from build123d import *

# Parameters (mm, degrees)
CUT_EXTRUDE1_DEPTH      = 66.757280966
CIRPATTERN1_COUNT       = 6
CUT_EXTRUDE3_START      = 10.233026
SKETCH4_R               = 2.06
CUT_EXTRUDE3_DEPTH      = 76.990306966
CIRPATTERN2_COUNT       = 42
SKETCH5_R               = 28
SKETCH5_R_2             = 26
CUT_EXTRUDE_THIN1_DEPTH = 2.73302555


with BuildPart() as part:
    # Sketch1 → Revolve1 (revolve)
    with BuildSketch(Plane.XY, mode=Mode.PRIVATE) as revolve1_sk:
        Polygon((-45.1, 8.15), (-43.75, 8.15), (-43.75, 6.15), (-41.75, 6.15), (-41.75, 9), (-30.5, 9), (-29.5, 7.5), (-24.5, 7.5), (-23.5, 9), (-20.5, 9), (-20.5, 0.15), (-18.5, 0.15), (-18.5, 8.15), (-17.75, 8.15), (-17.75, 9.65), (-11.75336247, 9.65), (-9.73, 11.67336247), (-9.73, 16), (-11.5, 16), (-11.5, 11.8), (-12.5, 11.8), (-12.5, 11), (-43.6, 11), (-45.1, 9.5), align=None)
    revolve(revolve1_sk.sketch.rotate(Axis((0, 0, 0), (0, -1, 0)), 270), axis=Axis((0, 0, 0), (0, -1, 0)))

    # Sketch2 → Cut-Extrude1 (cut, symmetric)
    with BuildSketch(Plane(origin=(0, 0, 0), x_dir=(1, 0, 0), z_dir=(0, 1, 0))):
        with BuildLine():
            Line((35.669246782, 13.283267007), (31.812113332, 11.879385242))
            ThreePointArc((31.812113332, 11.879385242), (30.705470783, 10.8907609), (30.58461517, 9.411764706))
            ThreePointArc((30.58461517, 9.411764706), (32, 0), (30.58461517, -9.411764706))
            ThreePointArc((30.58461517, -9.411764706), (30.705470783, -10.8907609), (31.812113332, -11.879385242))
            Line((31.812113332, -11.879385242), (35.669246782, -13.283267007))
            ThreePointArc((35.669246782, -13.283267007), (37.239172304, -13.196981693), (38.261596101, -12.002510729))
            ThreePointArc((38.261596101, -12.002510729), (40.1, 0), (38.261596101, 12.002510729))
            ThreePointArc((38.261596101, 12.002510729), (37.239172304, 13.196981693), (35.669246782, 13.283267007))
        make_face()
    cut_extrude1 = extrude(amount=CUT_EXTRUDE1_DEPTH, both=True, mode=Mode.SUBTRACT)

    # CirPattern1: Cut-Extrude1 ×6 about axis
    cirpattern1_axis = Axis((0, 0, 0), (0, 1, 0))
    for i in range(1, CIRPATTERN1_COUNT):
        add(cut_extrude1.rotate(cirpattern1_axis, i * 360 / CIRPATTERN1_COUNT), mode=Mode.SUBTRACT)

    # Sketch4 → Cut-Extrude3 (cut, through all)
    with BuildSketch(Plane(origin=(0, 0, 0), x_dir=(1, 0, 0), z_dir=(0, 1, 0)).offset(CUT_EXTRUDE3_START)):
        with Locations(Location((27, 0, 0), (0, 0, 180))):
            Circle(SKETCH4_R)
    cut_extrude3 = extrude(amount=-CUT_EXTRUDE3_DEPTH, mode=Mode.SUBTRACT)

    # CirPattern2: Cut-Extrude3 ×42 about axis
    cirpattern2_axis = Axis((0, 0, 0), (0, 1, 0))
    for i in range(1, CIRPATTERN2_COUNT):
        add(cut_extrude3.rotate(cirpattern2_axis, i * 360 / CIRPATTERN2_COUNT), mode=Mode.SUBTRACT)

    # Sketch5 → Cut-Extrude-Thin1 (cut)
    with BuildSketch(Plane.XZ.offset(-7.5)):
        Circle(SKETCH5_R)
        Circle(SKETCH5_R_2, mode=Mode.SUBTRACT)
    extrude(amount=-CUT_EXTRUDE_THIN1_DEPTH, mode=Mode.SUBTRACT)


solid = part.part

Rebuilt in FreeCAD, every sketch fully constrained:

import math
import FreeCAD as App
import Part
import Sketcher
from FreeCAD import Vector
Q = App.Units.Quantity

doc = App.newDocument("Part")
body = doc.addObject("PartDesign::Body", "Body")

# Sketch on XY plane
sketch1 = body.newObject("Sketcher::SketchObject", "Sketch")
sketch1.AttachmentSupport = (doc.getObject("XY_Plane"), [""])
sketch1.MapMode = "FlatFace"
sketch1.addGeometry(Part.LineSegment(Vector(-45.1, 8.2, 0), Vector(-43.8, 8.2, 0)), False)
sketch1.addGeometry(Part.LineSegment(Vector(-43.8, 8.2, 0), Vector(-43.8, 6.2, 0)), False)
sketch1.addGeometry(Part.LineSegment(Vector(-43.8, 6.2, 0), Vector(-41.8, 6.2, 0)), False)
sketch1.addGeometry(Part.LineSegment(Vector(-41.8, 6.2, 0), Vector(-41.8, 9, 0)), False)
sketch1.addGeometry(Part.LineSegment(Vector(-41.8, 9, 0), Vector(-30.5, 9, 0)), False)
sketch1.addGeometry(Part.LineSegment(Vector(-30.5, 9, 0), Vector(-29.5, 7.5, 0)), False)
sketch1.addGeometry(Part.LineSegment(Vector(-29.5, 7.5, 0), Vector(-24.5, 7.5, 0)), False)
sketch1.addGeometry(Part.LineSegment(Vector(-24.5, 7.5, 0), Vector(-23.5, 9, 0)), False)
sketch1.addGeometry(Part.LineSegment(Vector(-23.5, 9, 0), Vector(-20.5, 9, 0)), False)
sketch1.addGeometry(Part.LineSegment(Vector(-20.5, 9, 0), Vector(-20.5, 0.1, 0)), False)
sketch1.addGeometry(Part.LineSegment(Vector(-20.5, 0.1, 0), Vector(-18.5, 0.1, 0)), False)
sketch1.addGeometry(Part.LineSegment(Vector(-18.5, 0.1, 0), Vector(-18.5, 8.2, 0)), False)
sketch1.addGeometry(Part.LineSegment(Vector(-18.5, 8.2, 0), Vector(-17.8, 8.2, 0)), False)
sketch1.addGeometry(Part.LineSegment(Vector(-17.8, 8.2, 0), Vector(-17.8, 9.7, 0)), False)
sketch1.addGeometry(Part.LineSegment(Vector(-17.8, 9.7, 0), Vector(-11.8, 9.7, 0)), False)
sketch1.addGeometry(Part.LineSegment(Vector(-11.8, 9.7, 0), Vector(-9.7, 11.7, 0)), False)
sketch1.addGeometry(Part.LineSegment(Vector(-9.7, 11.7, 0), Vector(-9.7, 16, 0)), False)
sketch1.addGeometry(Part.LineSegment(Vector(-9.7, 16, 0), Vector(-11.5, 16, 0)), False)
sketch1.addGeometry(Part.LineSegment(Vector(-11.5, 16, 0), Vector(-11.5, 11.8, 0)), False)
sketch1.addGeometry(Part.LineSegment(Vector(-11.5, 11.8, 0), Vector(-12.5, 11.8, 0)), False)
sketch1.addGeometry(Part.LineSegment(Vector(-12.5, 11.8, 0), Vector(-12.5, 11, 0)), False)
sketch1.addGeometry(Part.LineSegment(Vector(-12.5, 11, 0), Vector(-43.6, 11, 0)), False)
sketch1.addGeometry(Part.LineSegment(Vector(-43.6, 11, 0), Vector(-45.1, 9.5, 0)), False)
sketch1.addGeometry(Part.LineSegment(Vector(-45.1, 9.5, 0), Vector(-45.1, 8.2, 0)), False)
sketch1.addConstraint(Sketcher.Constraint("Coincident", 0, 2, 1, 1))
sketch1.addConstraint(Sketcher.Constraint("Coincident", 1, 2, 2, 1))
sketch1.addConstraint(Sketcher.Constraint("Coincident", 2, 2, 3, 1))
sketch1.addConstraint(Sketcher.Constraint("Coincident", 3, 2, 4, 1))
sketch1.addConstraint(Sketcher.Constraint("Coincident", 4, 2, 5, 1))
sketch1.addConstraint(Sketcher.Constraint("Coincident", 5, 2, 6, 1))
sketch1.addConstraint(Sketcher.Constraint("Coincident", 6, 2, 7, 1))
sketch1.addConstraint(Sketcher.Constraint("Coincident", 7, 2, 8, 1))
sketch1.addConstraint(Sketcher.Constraint("Coincident", 8, 2, 9, 1))
sketch1.addConstraint(Sketcher.Constraint("Coincident", 9, 2, 10, 1))
sketch1.addConstraint(Sketcher.Constraint("Coincident", 10, 2, 11, 1))
sketch1.addConstraint(Sketcher.Constraint("Coincident", 11, 2, 12, 1))
sketch1.addConstraint(Sketcher.Constraint("Coincident", 12, 2, 13, 1))
sketch1.addConstraint(Sketcher.Constraint("Coincident", 13, 2, 14, 1))
sketch1.addConstraint(Sketcher.Constraint("Coincident", 14, 2, 15, 1))
sketch1.addConstraint(Sketcher.Constraint("Coincident", 15, 2, 16, 1))
sketch1.addConstraint(Sketcher.Constraint("Coincident", 16, 2, 17, 1))
sketch1.addConstraint(Sketcher.Constraint("Coincident", 17, 2, 18, 1))
sketch1.addConstraint(Sketcher.Constraint("Coincident", 18, 2, 19, 1))
sketch1.addConstraint(Sketcher.Constraint("Coincident", 19, 2, 20, 1))
sketch1.addConstraint(Sketcher.Constraint("Coincident", 20, 2, 21, 1))
sketch1.addConstraint(Sketcher.Constraint("Coincident", 21, 2, 22, 1))
sketch1.addConstraint(Sketcher.Constraint("Coincident", 22, 2, 23, 1))
sketch1.addConstraint(Sketcher.Constraint("Coincident", 23, 2, 0, 1))
sketch1.addConstraint(Sketcher.Constraint("Horizontal", 0))
sketch1.addConstraint(Sketcher.Constraint("Vertical", 1))
sketch1.addConstraint(Sketcher.Constraint("Horizontal", 2))
sketch1.addConstraint(Sketcher.Constraint("Vertical", 3))
sketch1.addConstraint(Sketcher.Constraint("Horizontal", 4))
sketch1.addConstraint(Sketcher.Constraint("Horizontal", 6))
sketch1.addConstraint(Sketcher.Constraint("Horizontal", 8))
sketch1.addConstraint(Sketcher.Constraint("Vertical", 9))
sketch1.addConstraint(Sketcher.Constraint("Horizontal", 10))
sketch1.addConstraint(Sketcher.Constraint("Vertical", 11))
sketch1.addConstraint(Sketcher.Constraint("Horizontal", 12))
sketch1.addConstraint(Sketcher.Constraint("Vertical", 13))
sketch1.addConstraint(Sketcher.Constraint("Horizontal", 14))
sketch1.addConstraint(Sketcher.Constraint("Vertical", 16))
sketch1.addConstraint(Sketcher.Constraint("Horizontal", 17))
sketch1.addConstraint(Sketcher.Constraint("Vertical", 18))
sketch1.addConstraint(Sketcher.Constraint("Horizontal", 19))
sketch1.addConstraint(Sketcher.Constraint("Vertical", 20))
sketch1.addConstraint(Sketcher.Constraint("Horizontal", 21))
sketch1.addConstraint(Sketcher.Constraint("Vertical", 23))
sketch1.addConstraint(Sketcher.Constraint("Parallel", 15, 22))
sketch1.addConstraint(Sketcher.Constraint("Horizontal", 4, 2, 7, 2))
sketch1.addConstraint(Sketcher.Constraint("Horizontal", 0, 2, 11, 2))
sketch1.addConstraint(Sketcher.Constraint("Equal", 2, 10))
sketch1.addConstraint(Sketcher.Constraint("Equal", 10, 1))
sketch1.addConstraint(Sketcher.Constraint("Equal", 0, 23))
sketch1.addConstraint(Sketcher.Constraint("Equal", 5, 7))
sketch1.addConstraint(Sketcher.Constraint("DistanceX", 2, 1, 2, 2, 2.0))
sketch1.addConstraint(Sketcher.Constraint("DistanceX", 6, 1, 6, 2, 5.0))
sketch1.addConstraint(Sketcher.Constraint("DistanceX", 8, 1, 8, 2, 3.0))
sketch1.addConstraint(Sketcher.Constraint("DistanceX", 19, 2, 19, 1, 1.0))
sketch1.addConstraint(Sketcher.Constraint("DistanceY", 11, 1, 11, 2, 8.0))
sketch1.addConstraint(Sketcher.Constraint("Angle", 15, Q("45 deg")))
sketch1.addConstraint(Sketcher.Constraint("DistanceX", 21, 2, 21, 1, 31.1))
sketch1.addConstraint(Sketcher.Constraint("DistanceY", 13, 1, 13, 2, 1.5))
sketch1.addConstraint(Sketcher.Constraint("DistanceY", 18, 2, 18, 1, 4.2))
sketch1.addConstraint(Sketcher.Constraint("DistanceY", 20, 2, 20, 1, 0.8))
sketch1.addConstraint(Sketcher.Constraint("DistanceY", -1, 1, 3, 2, 9.0))
sketch1.addConstraint(Sketcher.Constraint("DistanceY", -1, 1, 16, 2, 16.0))
sketch1.addConstraint(Sketcher.Constraint("DistanceX", 4, 2, 5, 2, 1.0))
sketch1.addConstraint(Sketcher.Constraint("DistanceX", 0, 1, 0, 2, 1.35))
sketch1.addConstraint(Sketcher.Constraint("DistanceX", 4, 1, 4, 2, 11.25))
sketch1.addConstraint(Sketcher.Constraint("DistanceX", 12, 1, 12, 2, 0.75))
sketch1.addConstraint(Sketcher.Constraint("DistanceX", 17, 2, 17, 1, 1.77))
sketch1.addConstraint(Sketcher.Constraint("DistanceY", 3, 1, 3, 2, 2.85))
sketch1.addConstraint(Sketcher.Constraint("DistanceX", 4, 2, -1, 1, 30.5))
sketch1.addConstraint(Sketcher.Constraint("DistanceY", -1, 1, 5, 2, 7.5))
sketch1.addConstraint(Sketcher.Constraint("DistanceX", 14, 1, 14, 2, 5.996638))
revolution = body.newObject("PartDesign::Revolution", "Revolution")
revolution.Profile = sketch1
revolution.ReferenceAxis = (sketch1, ["V_Axis"])
revolution.Angle = 360

# Sketch on XZ plane
sketch2 = body.newObject("Sketcher::SketchObject", "Sketch001")
sketch2.AttachmentSupport = (doc.getObject("XZ_Plane"), [""])
sketch2.MapMode = "FlatFace"
sketch2.addGeometry(Part.LineSegment(Vector(35.7, -13.3, 0), Vector(31.8, -11.9, 0)), False)
sketch2.addGeometry(Part.ArcOfCircle(Part.Circle(Vector(32.5, -10, 0), Vector(0, 0, 1), 2), math.radians(163), math.radians(250)), False)
sketch2.addGeometry(Part.ArcOfCircle(Part.Circle(Vector(0, 0, 0), Vector(0, 0, 1), 32), math.radians(-17), math.radians(17)), False)
sketch2.addGeometry(Part.ArcOfCircle(Part.Circle(Vector(32.5, 10, 0), Vector(0, 0, 1), 2), math.radians(110), math.radians(197)), False)
sketch2.addGeometry(Part.LineSegment(Vector(31.8, 11.9, 0), Vector(35.7, 13.3, 0)), False)
sketch2.addGeometry(Part.ArcOfCircle(Part.Circle(Vector(36.4, 11.4, 0), Vector(0, 0, 1), 2), math.radians(17), math.radians(110)), False)
sketch2.addGeometry(Part.ArcOfCircle(Part.Circle(Vector(0, 0, 0), Vector(0, 0, 1), 40.1), math.radians(-17), math.radians(17)), False)
sketch2.addGeometry(Part.ArcOfCircle(Part.Circle(Vector(36.4, -11.4, 0), Vector(0, 0, 1), 2), math.radians(-110), math.radians(-17)), False)
sketch2.addConstraint(Sketcher.Constraint("Tangent", 0, 2, 1, 2))
sketch2.addConstraint(Sketcher.Constraint("Tangent", 1, 1, 2, 1))
sketch2.addConstraint(Sketcher.Constraint("Tangent", 2, 2, 3, 2))
sketch2.addConstraint(Sketcher.Constraint("Tangent", 3, 1, 4, 1))
sketch2.addConstraint(Sketcher.Constraint("Tangent", 4, 2, 5, 2))
sketch2.addConstraint(Sketcher.Constraint("Tangent", 5, 1, 6, 2))
sketch2.addConstraint(Sketcher.Constraint("Tangent", 6, 1, 7, 2))
sketch2.addConstraint(Sketcher.Constraint("Tangent", 7, 1, 0, 1))
sketch2.addConstraint(Sketcher.Constraint("Coincident", 2, 3, -1, 1))
sketch2.addConstraint(Sketcher.Constraint("Coincident", 6, 3, -1, 1))
sketch2.addConstraint(Sketcher.Constraint("Equal", 1, 3))
sketch2.addConstraint(Sketcher.Constraint("Equal", 3, 5))
sketch2.addConstraint(Sketcher.Constraint("Equal", 5, 7))
sketch2.addConstraint(Sketcher.Constraint("Symmetric", 0, 2, 3, 1, -1))
sketch2.addConstraint(Sketcher.Constraint("Radius", 1, 2.0))
sketch2.addConstraint(Sketcher.Constraint("Radius", 2, 32.0))
sketch2.addConstraint(Sketcher.Constraint("Radius", 6, 40.1))
sketch2.addConstraint(Sketcher.Constraint("Angle", 0, Q("160 deg")))
sketch2.addConstraint(Sketcher.Constraint("DistanceY", 1, 3, -1, 1, 10.0))
pocket1 = body.newObject("PartDesign::Pocket", "Pocket")
pocket1.Profile = sketch2
pocket1.Length = 133.514562
pocket1.Midplane = True
doc.recompute()

polarpattern = body.newObject("PartDesign::PolarPattern", "PolarPattern")
polarpattern.Originals = [pocket1]
polarpattern.Axis = (doc.getObject("Y_Axis"), [""])
polarpattern.Angle = 360
polarpattern.Occurrences = 6
body.Tip = polarpattern

# Sketch on XZ plane
sketch3 = body.newObject("Sketcher::SketchObject", "Sketch002")
sketch3.AttachmentSupport = (doc.getObject("XZ_Plane"), [""])
sketch3.MapMode = "FlatFace"
sketch3.AttachmentOffset = App.Placement(Vector(0, 0, -10.233026), App.Rotation())
sketch3.addGeometry(Part.Circle(Vector(27, 0, 0), Vector(0, 0, 1), 2.1), False)
sketch3.addConstraint(Sketcher.Constraint("PointOnObject", 0, 3, -1))
sketch3.addConstraint(Sketcher.Constraint("Diameter", 0, 4.12))
sketch3.addConstraint(Sketcher.Constraint("DistanceX", -1, 1, 0, 3, 27.0))
pocket2 = body.newObject("PartDesign::Pocket", "Pocket001")
pocket2.Profile = sketch3
pocket2.Type = "ThroughAll"
pocket2.Reversed = True
doc.recompute()

polarpattern2 = body.newObject("PartDesign::PolarPattern", "PolarPattern001")
polarpattern2.Originals = [pocket2]
polarpattern2.Axis = (doc.getObject("Y_Axis"), [""])
polarpattern2.Angle = 360
polarpattern2.Occurrences = 42
body.Tip = polarpattern2

# Sketch on XZ plane
sketch4 = body.newObject("Sketcher::SketchObject", "Sketch003")
sketch4.AttachmentSupport = (doc.getObject("XZ_Plane"), [""])
sketch4.MapMode = "FlatFace"
sketch4.AttachmentOffset = App.Placement(Vector(0, 0, -7.5), App.Rotation())
sketch4.addGeometry(Part.Circle(Vector(0, 0, 0), Vector(0, 0, 1), 28), False)
sketch4.addGeometry(Part.Circle(Vector(0, 0, 0), Vector(0, 0, 1), 26), False)
sketch4.addConstraint(Sketcher.Constraint("Coincident", 0, 3, -1, 1))
sketch4.addConstraint(Sketcher.Constraint("Coincident", 1, 3, -1, 1))
sketch4.addConstraint(Sketcher.Constraint("Diameter", 0, 56.0))
sketch4.addConstraint(Sketcher.Constraint("Diameter", 1, 52.0))
pocket3 = body.newObject("PartDesign::Pocket", "Pocket002")
pocket3.Profile = sketch4
pocket3.Length = 2.733026

doc.recompute()
